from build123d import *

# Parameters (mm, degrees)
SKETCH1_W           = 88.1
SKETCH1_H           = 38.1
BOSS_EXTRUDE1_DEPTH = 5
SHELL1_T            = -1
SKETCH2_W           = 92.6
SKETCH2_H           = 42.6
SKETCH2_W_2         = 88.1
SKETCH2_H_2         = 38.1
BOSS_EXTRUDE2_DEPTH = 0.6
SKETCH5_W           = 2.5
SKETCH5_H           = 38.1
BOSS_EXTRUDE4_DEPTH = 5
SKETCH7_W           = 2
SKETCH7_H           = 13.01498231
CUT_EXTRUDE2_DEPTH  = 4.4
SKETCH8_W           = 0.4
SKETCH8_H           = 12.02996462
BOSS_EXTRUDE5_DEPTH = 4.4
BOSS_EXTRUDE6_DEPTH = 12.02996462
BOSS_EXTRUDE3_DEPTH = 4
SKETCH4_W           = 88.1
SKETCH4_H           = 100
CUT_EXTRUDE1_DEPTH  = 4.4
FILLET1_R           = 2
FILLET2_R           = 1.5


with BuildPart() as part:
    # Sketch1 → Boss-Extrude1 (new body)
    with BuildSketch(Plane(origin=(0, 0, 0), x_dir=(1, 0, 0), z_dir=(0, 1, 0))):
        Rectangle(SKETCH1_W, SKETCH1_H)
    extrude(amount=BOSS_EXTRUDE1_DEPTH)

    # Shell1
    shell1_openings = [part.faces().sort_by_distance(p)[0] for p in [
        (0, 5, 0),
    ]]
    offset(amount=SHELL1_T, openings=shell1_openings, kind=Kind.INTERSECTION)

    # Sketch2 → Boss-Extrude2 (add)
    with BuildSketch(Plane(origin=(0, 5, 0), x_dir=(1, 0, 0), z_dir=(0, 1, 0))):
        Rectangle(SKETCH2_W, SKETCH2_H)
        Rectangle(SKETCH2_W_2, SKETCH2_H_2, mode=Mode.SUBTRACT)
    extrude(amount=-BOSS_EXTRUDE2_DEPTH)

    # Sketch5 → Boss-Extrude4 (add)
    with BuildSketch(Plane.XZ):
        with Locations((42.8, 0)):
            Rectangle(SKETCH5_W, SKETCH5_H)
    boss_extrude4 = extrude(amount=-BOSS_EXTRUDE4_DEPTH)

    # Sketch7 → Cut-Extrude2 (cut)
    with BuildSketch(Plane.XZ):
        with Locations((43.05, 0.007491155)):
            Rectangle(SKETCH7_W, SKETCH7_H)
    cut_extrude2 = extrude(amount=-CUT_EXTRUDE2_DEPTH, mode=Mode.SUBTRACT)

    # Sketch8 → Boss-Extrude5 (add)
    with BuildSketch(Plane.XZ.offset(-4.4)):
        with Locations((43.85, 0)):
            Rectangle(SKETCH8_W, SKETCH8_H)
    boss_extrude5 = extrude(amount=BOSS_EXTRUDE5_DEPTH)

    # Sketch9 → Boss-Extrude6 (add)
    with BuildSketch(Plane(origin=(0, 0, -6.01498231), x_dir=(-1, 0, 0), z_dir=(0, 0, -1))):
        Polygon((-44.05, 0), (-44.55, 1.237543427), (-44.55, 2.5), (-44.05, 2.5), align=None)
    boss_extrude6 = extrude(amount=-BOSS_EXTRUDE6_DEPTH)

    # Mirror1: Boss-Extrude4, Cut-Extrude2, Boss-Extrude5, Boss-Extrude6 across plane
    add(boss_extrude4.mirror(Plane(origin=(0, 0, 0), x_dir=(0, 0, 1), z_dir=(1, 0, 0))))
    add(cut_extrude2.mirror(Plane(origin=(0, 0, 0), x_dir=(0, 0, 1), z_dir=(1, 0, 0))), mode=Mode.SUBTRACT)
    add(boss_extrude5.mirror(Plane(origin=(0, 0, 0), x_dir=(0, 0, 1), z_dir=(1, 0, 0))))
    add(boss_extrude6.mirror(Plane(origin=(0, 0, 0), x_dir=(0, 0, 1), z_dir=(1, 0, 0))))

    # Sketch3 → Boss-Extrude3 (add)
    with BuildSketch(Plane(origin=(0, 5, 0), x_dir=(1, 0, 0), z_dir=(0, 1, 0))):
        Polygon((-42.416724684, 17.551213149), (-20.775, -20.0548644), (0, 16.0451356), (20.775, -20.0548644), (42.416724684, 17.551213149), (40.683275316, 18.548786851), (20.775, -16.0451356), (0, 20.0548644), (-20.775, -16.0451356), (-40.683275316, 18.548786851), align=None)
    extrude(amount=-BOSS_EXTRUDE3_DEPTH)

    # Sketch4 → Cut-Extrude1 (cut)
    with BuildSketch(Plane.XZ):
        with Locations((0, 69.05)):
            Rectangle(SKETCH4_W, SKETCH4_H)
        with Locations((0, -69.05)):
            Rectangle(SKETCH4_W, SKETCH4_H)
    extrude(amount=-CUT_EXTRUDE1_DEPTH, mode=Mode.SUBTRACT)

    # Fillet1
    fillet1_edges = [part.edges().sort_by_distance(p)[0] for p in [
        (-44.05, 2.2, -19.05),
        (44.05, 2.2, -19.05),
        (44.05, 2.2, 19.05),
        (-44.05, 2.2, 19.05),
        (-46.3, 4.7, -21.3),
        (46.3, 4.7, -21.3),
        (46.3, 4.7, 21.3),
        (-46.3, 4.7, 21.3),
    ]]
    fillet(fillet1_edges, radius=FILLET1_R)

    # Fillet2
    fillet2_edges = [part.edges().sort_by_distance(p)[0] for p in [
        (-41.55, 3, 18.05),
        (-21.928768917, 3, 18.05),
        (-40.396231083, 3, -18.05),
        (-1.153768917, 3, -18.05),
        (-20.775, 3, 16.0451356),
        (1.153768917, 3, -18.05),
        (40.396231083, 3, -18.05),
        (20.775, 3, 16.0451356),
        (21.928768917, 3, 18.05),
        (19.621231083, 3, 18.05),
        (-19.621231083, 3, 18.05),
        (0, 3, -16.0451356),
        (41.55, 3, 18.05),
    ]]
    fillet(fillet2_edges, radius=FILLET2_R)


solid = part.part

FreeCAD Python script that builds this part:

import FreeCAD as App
import Part
import Sketcher
Q = App.Units.Quantity


def edges_at(feature, points):
    """Names of the edges that pass closest to the given points."""
    edges = feature.Shape.Edges
    near = lambda p: min(range(len(edges)), key=lambda i: edges[i].distToShape(Part.Vertex(*p))[0])
    return sorted({f"Edge{near(p) + 1}" for p in points})


def faces_at(feature, points):
    """Names of the faces that lie closest to the given points."""
    faces = feature.Shape.Faces
    near = lambda p: min(range(len(faces)), key=lambda i: faces[i].distToShape(Part.Vertex(*p))[0])
    return sorted({f"Face{near(p) + 1}" for p in points})

doc = App.newDocument("Part")
body = doc.addObject("PartDesign::Body", "Body")

# Sketch on XZ plane
sketch1 = body.newObject("Sketcher::SketchObject", "Sketch")
sketch1.AttachmentSupport = (doc.getObject("XZ_Plane"), [""])
sketch1.MapMode = "FlatFace"
sketch1.addGeometry([
    Part.LineSegment(App.Vector(-44, -19, 0), App.Vector(-44, 19, 0)),
    Part.LineSegment(App.Vector(-44, 19, 0), App.Vector(44, 19, 0)),
    Part.LineSegment(App.Vector(44, 19, 0), App.Vector(44, -19, 0)),
    Part.LineSegment(App.Vector(44, -19, 0), App.Vector(-44, -19, 0)),
], False)
sketch1.addConstraint([
    Sketcher.Constraint("Coincident", 0, 2, 1, 1),
    Sketcher.Constraint("Coincident", 1, 2, 2, 1),
    Sketcher.Constraint("Coincident", 2, 2, 3, 1),
    Sketcher.Constraint("Coincident", 3, 2, 0, 1),
    Sketcher.Constraint("Vertical", 0),
    Sketcher.Constraint("Horizontal", 1),
    Sketcher.Constraint("Vertical", 2),
    Sketcher.Constraint("Horizontal", 3),
    Sketcher.Constraint("Symmetric", 0, 2, 2, 2, -1, 1),
    Sketcher.Constraint("DistanceX", 1, 1, 1, 2, 88.1),
    Sketcher.Constraint("DistanceY", 0, 1, 0, 2, 38.1),
])
pad1 = body.newObject("PartDesign::Pad", "Pad")
pad1.Profile = sketch1
pad1.Length = 5
pad1.Reversed = True
doc.recompute()

thickness = body.newObject("PartDesign::Thickness", "Thickness")
thickness.Base = (pad1, faces_at(pad1, [(0, 5, 0)]))
thickness.Value = 1
thickness.Reversed = True
thickness.Join = "Intersection"

# Sketch on XZ plane
sketch2 = body.newObject("Sketcher::SketchObject", "Sketch001")
sketch2.AttachmentSupport = (doc.getObject("XZ_Plane"), [""])
sketch2.MapMode = "FlatFace"
sketch2.AttachmentOffset = App.Placement(App.Vector(0, 0, -5), App.Rotation())
sketch2.addGeometry([
    Part.LineSegment(App.Vector(-46, -21, 0), App.Vector(-46, 21, 0)),  # 0
    Part.LineSegment(App.Vector(-46, 21, 0), App.Vector(46, 21, 0)),  # 1
    Part.LineSegment(App.Vector(46, 21, 0), App.Vector(46, -21, 0)),  # 2
    Part.LineSegment(App.Vector(46, -21, 0), App.Vector(-46, -21, 0)),  # 3
    Part.LineSegment(App.Vector(44, 19, 0), App.Vector(-44, 19, 0)),  # 4
    Part.LineSegment(App.Vector(-44, 19, 0), App.Vector(-44, -19, 0)),  # 5
    Part.LineSegment(App.Vector(-44, -19, 0), App.Vector(44, -19, 0)),  # 6
    Part.LineSegment(App.Vector(44, -19, 0), App.Vector(44, 19, 0)),  # 7
], False)
sketch2.addConstraint([
    Sketcher.Constraint("Coincident", 0, 2, 1, 1),
    Sketcher.Constraint("Coincident", 1, 2, 2, 1),
    Sketcher.Constraint("Coincident", 2, 2, 3, 1),
    Sketcher.Constraint("Coincident", 3, 2, 0, 1),
    Sketcher.Constraint("Coincident", 4, 2, 5, 1),
    Sketcher.Constraint("Coincident", 5, 2, 6, 1),
    Sketcher.Constraint("Coincident", 6, 2, 7, 1),
    Sketcher.Constraint("Coincident", 7, 2, 4, 1),
    Sketcher.Constraint("Vertical", 0),
    Sketcher.Constraint("Horizontal", 1),
    Sketcher.Constraint("Vertical", 2),
    Sketcher.Constraint("Horizontal", 3),
    Sketcher.Constraint("Horizontal", 4),
    Sketcher.Constraint("Vertical", 5),
    Sketcher.Constraint("Horizontal", 6),
    Sketcher.Constraint("Vertical", 7),
    Sketcher.Constraint("Symmetric", 0, 2, 2, 2, -1, 1),
    Sketcher.Constraint("Symmetric", 4, 2, 6, 2, -1, 1),
    Sketcher.Constraint("DistanceX", 1, 1, 1, 2, 92.6),
    Sketcher.Constraint("DistanceX", 4, 2, 4, 1, 88.1),
    Sketcher.Constraint("DistanceY", 0, 1, 0, 2, 42.6),
    Sketcher.Constraint("DistanceY", 5, 2, 5, 1, 38.1),
])
pad2 = body.newObject("PartDesign::Pad", "Pad001")
pad2.Profile = sketch2
pad2.Length = 0.6

# Sketch on XZ plane
sketch3 = body.newObject("Sketcher::SketchObject", "Sketch002")
sketch3.AttachmentSupport = (doc.getObject("XZ_Plane"), [""])
sketch3.MapMode = "FlatFace"
sketch3.addGeometry([
    Part.LineSegment(App.Vector(41.5, 19.1, 0), App.Vector(41.5, -19.1, 0)),
    Part.LineSegment(App.Vector(41.5, -19.1, 0), App.Vector(44, -19.1, 0)),
    Part.LineSegment(App.Vector(44, -19.1, 0), App.Vector(44, 19.1, 0)),
    Part.LineSegment(App.Vector(44, 19.1, 0), App.Vector(41.5, 19.1, 0)),
], False)
sketch3.addConstraint([
    Sketcher.Constraint("Coincident", 0, 2, 1, 1),
    Sketcher.Constraint("Coincident", 1, 2, 2, 1),
    Sketcher.Constraint("Coincident", 2, 2, 3, 1),
    Sketcher.Constraint("Coincident", 3, 2, 0, 1),
    Sketcher.Constraint("Vertical", 0),
    Sketcher.Constraint("Horizontal", 1),
    Sketcher.Constraint("Vertical", 2),
    Sketcher.Constraint("Horizontal", 3),
    Sketcher.Constraint("DistanceX", 1, 1, 1, 2, 2.5),
    Sketcher.Constraint("DistanceY", 0, 2, 0, 1, 38.1),
    Sketcher.Constraint("DistanceX", -1, 1, 0, 2, 41.55),
    Sketcher.Constraint("DistanceY", 0, 2, -1, 1, 19.05),
])
pad3 = body.newObject("PartDesign::Pad", "Pad002")
pad3.Profile = sketch3
pad3.Length = 5
pad3.Reversed = True

# Sketch on XZ plane
sketch4 = body.newObject("Sketcher::SketchObject", "Sketch003")
sketch4.AttachmentSupport = (doc.getObject("XZ_Plane"), [""])
sketch4.MapMode = "FlatFace"
sketch4.addGeometry([
    Part.LineSegment(App.Vector(42, 6.5, 0), App.Vector(42, -6.5, 0)),
    Part.LineSegment(App.Vector(42, -6.5, 0), App.Vector(44, -6.5, 0)),
    Part.LineSegment(App.Vector(44, -6.5, 0), App.Vector(44, 6.5, 0)),
    Part.LineSegment(App.Vector(44, 6.5, 0), App.Vector(42, 6.5, 0)),
], False)
sketch4.addConstraint([
    Sketcher.Constraint("Coincident", 0, 2, 1, 1),
    Sketcher.Constraint("Coincident", 1, 2, 2, 1),
    Sketcher.Constraint("Coincident", 2, 2, 3, 1),
    Sketcher.Constraint("Coincident", 3, 2, 0, 1),
    Sketcher.Constraint("Vertical", 0),
    Sketcher.Constraint("Horizontal", 1),
    Sketcher.Constraint("Vertical", 2),
    Sketcher.Constraint("Horizontal", 3),
    Sketcher.Constraint("DistanceX", 1, 1, 1, 2, 2.0),
    Sketcher.Constraint("DistanceY", 0, 2, -1, 1, 6.5),
    Sketcher.Constraint("DistanceX", -1, 1, 0, 2, 42.05),
    Sketcher.Constraint("DistanceY", 0, 2, 0, 1, 13.014982),
])
pocket1 = body.newObject("PartDesign::Pocket", "Pocket")
pocket1.Profile = sketch4
pocket1.Length = 4.4

# Sketch on XZ plane
sketch5 = body.newObject("Sketcher::SketchObject", "Sketch004")
sketch5.AttachmentSupport = (doc.getObject("XZ_Plane"), [""])
sketch5.MapMode = "FlatFace"
sketch5.AttachmentOffset = App.Placement(App.Vector(0, 0, -4.4), App.Rotation())
sketch5.addGeometry([
    Part.LineSegment(App.Vector(43.65, 6.01, 0), App.Vector(43.65, -6.01, 0)),
    Part.LineSegment(App.Vector(43.65, -6.01, 0), App.Vector(44.05, -6.01, 0)),
    Part.LineSegment(App.Vector(44.05, -6.01, 0), App.Vector(44.05, 6.01, 0)),
    Part.LineSegment(App.Vector(44.05, 6.01, 0), App.Vector(43.65, 6.01, 0)),
], False)
sketch5.addConstraint([
    Sketcher.Constraint("Coincident", 0, 2, 1, 1),
    Sketcher.Constraint("Coincident", 1, 2, 2, 1),
    Sketcher.Constraint("Coincident", 2, 2, 3, 1),
    Sketcher.Constraint("Coincident", 3, 2, 0, 1),
    Sketcher.Constraint("Vertical", 0),
    Sketcher.Constraint("Horizontal", 1),
    Sketcher.Constraint("Vertical", 2),
    Sketcher.Constraint("Horizontal", 3),
    Sketcher.Constraint("DistanceX", 1, 1, 1, 2, 0.4),
    Sketcher.Constraint("DistanceX", -1, 1, 0, 2, 43.65),
    Sketcher.Constraint("DistanceY", 0, 2, 0, 1, 12.029965),
    Sketcher.Constraint("DistanceY", 0, 2, -1, 1, 6.014982),
])
pad4 = body.newObject("PartDesign::Pad", "Pad003")
pad4.Profile = sketch5
pad4.Length = 4.4

# Sketch on XY plane
sketch6 = body.newObject("Sketcher::SketchObject", "Sketch005")
sketch6.AttachmentSupport = (doc.getObject("XY_Plane"), [""])
sketch6.MapMode = "FlatFace"
sketch6.AttachmentOffset = App.Placement(App.Vector(0, 0, -6.014982), App.Rotation())
sketch6.addGeometry([
    Part.LineSegment(App.Vector(44.5, 1.2, 0), App.Vector(44, 0, 0)),
    Part.LineSegment(App.Vector(44, 0, 0), App.Vector(44, 2.5, 0)),
    Part.LineSegment(App.Vector(44, 2.5, 0), App.Vector(44.5, 2.5, 0)),
    Part.LineSegment(App.Vector(44.5, 2.5, 0), App.Vector(44.5, 1.2, 0)),
], False)
sketch6.addConstraint([
    Sketcher.Constraint("Coincident", 0, 2, 1, 1),
    Sketcher.Constraint("Coincident", 1, 2, 2, 1),
    Sketcher.Constraint("Coincident", 2, 2, 3, 1),
    Sketcher.Constraint("Coincident", 3, 2, 0, 1),
    Sketcher.Constraint("Vertical", 1),
    Sketcher.Constraint("Horizontal", 2),
    Sketcher.Constraint("Vertical", 3),
    Sketcher.Constraint("PointOnObject", 0, 2, -1),
    Sketcher.Constraint("Angle", 0, Q("-112 deg")),
    Sketcher.Constraint("DistanceX", 2, 1, 2, 2, 0.5),
    Sketcher.Constraint("DistanceY", 1, 1, 1, 2, 2.5),
    Sketcher.Constraint("DistanceX", -1, 1, 0, 2, 44.05),
])
pad5 = body.newObject("PartDesign::Pad", "Pad004")
pad5.Profile = sketch6
pad5.Length = 12.029965
doc.recompute()

mirrored = body.newObject("PartDesign::Mirrored", "Mirrored")
mirrored.Originals = [pad3, pocket1, pad4, pad5]
mirrored.MirrorPlane = (doc.getObject("YZ_Plane"), [""])
body.Tip = mirrored

# Sketch on XZ plane
sketch7 = body.newObject("Sketcher::SketchObject", "Sketch006")
sketch7.AttachmentSupport = (doc.getObject("XZ_Plane"), [""])
sketch7.MapMode = "FlatFace"
sketch7.AttachmentOffset = App.Placement(App.Vector(0, 0, -5), App.Rotation())
sketch7.addGeometry([
    Part.LineSegment(App.Vector(-42.4, -17.6, 0), App.Vector(-20.8, 20.1, 0)),  # 0
    Part.LineSegment(App.Vector(-20.8, 20.1, 0), App.Vector(0, -16, 0)),  # 1
    Part.LineSegment(App.Vector(0, -16, 0), App.Vector(20.8, 20.1, 0)),  # 2
    Part.LineSegment(App.Vector(20.8, 20.1, 0), App.Vector(42.4, -17.6, 0)),  # 3
    Part.LineSegment(App.Vector(42.4, -17.6, 0), App.Vector(40.7, -18.5, 0)),  # 4
    Part.LineSegment(App.Vector(40.7, -18.5, 0), App.Vector(20.8, 16, 0)),  # 5
    Part.LineSegment(App.Vector(20.8, 16, 0), App.Vector(0, -20.1, 0)),  # 6
    Part.LineSegment(App.Vector(0, -20.1, 0), App.Vector(-20.8, 16, 0)),  # 7
    Part.LineSegment(App.Vector(-20.8, 16, 0), App.Vector(-40.7, -18.5, 0)),  # 8
    Part.LineSegment(App.Vector(-40.7, -18.5, 0), App.Vector(-42.4, -17.6, 0)),  # 9
], False)
sketch7.addConstraint([
    Sketcher.Constraint("Coincident", 0, 2, 1, 1),
    Sketcher.Constraint("Coincident", 1, 2, 2, 1),
    Sketcher.Constraint("Coincident", 2, 2, 3, 1),
    Sketcher.Constraint("Coincident", 3, 2, 4, 1),
    Sketcher.Constraint("Coincident", 4, 2, 5, 1),
    Sketcher.Constraint("Coincident", 5, 2, 6, 1),
    Sketcher.Constraint("Coincident", 6, 2, 7, 1),
    Sketcher.Constraint("Coincident", 7, 2, 8, 1),
    Sketcher.Constraint("Coincident", 8, 2, 9, 1),
    Sketcher.Constraint("Coincident", 9, 2, 0, 1),
    Sketcher.Constraint("Symmetric", 0, 2, 2, 2, -2),
    Sketcher.Constraint("Symmetric", 5, 2, 7, 2, -2),
    Sketcher.Constraint("Symmetric", 4, 2, 8, 2, -2),
    Sketcher.Constraint("Symmetric", 3, 2, 9, 2, -2),
    Sketcher.Constraint("PointOnObject", 1, 2, -2),
    Sketcher.Constraint("PointOnObject", 6, 2, -2),
    Sketcher.Constraint("Parallel", 0, 2),
    Sketcher.Constraint("Perpendicular", 3, 4),
    Sketcher.Constraint("Perpendicular", 4, 5),
    Sketcher.Constraint("Parallel", 2, 6),
    Sketcher.Constraint("Vertical", 2, 2, 5, 2),
    Sketcher.Constraint("Distance", 4, 2.0),
    Sketcher.Constraint("DistanceY", 1, 2, 0, 2, 36.1),
    Sketcher.Constraint("DistanceX", 0, 2, 2, 2, 41.55),
    Sketcher.Constraint("DistanceY", 4, 2, 1, 2, 2.503651),
    Sketcher.Constraint("DistanceY", -1, 1, 0, 2, 20.054864),
])
pad6 = body.newObject("PartDesign::Pad", "Pad005")
pad6.Profile = sketch7
pad6.Length = 4

# Sketch on XZ plane
sketch8 = body.newObject("Sketcher::SketchObject", "Sketch007")
sketch8.AttachmentSupport = (doc.getObject("XZ_Plane"), [""])
sketch8.MapMode = "FlatFace"
sketch8.addGeometry([
    Part.LineSegment(App.Vector(-44, 119, 0), App.Vector(-44, 19, 0)),  # 0
    Part.LineSegment(App.Vector(-44, 19, 0), App.Vector(44, 19, 0)),  # 1
    Part.LineSegment(App.Vector(44, 19, 0), App.Vector(44, 119, 0)),  # 2
    Part.LineSegment(App.Vector(44, 119, 0), App.Vector(-44, 119, 0)),  # 3
    Part.LineSegment(App.Vector(-44, -19, 0), App.Vector(-44, -119, 0)),  # 4
    Part.LineSegment(App.Vector(-44, -119, 0), App.Vector(44, -119, 0)),  # 5
    Part.LineSegment(App.Vector(44, -119, 0), App.Vector(44, -19, 0)),  # 6
    Part.LineSegment(App.Vector(44, -19, 0), App.Vector(-44, -19, 0)),  # 7
], False)
sketch8.addConstraint([
    Sketcher.Constraint("Coincident", 0, 2, 1, 1),
    Sketcher.Constraint("Coincident", 1, 2, 2, 1),
    Sketcher.Constraint("Coincident", 2, 2, 3, 1),
    Sketcher.Constraint("Coincident", 3, 2, 0, 1),
    Sketcher.Constraint("Coincident", 4, 2, 5, 1),
    Sketcher.Constraint("Coincident", 5, 2, 6, 1),
    Sketcher.Constraint("Coincident", 6, 2, 7, 1),
    Sketcher.Constraint("Coincident", 7, 2, 4, 1),
    Sketcher.Constraint("Vertical", 0),
    Sketcher.Constraint("Horizontal", 1),
    Sketcher.Constraint("Vertical", 2),
    Sketcher.Constraint("Horizontal", 3),
    Sketcher.Constraint("Vertical", 4),
    Sketcher.Constraint("Horizontal", 5),
    Sketcher.Constraint("Vertical", 6),
    Sketcher.Constraint("Horizontal", 7),
    Sketcher.Constraint("Symmetric", 2, 2, 4, 2, -1, 1),
    Sketcher.Constraint("Symmetric", 0, 2, 6, 2, -1, 1),
    Sketcher.Constraint("Vertical", 3, 2, 4, 2),
    Sketcher.Constraint("DistanceY", 0, 2, 0, 1, 100.0),
    Sketcher.Constraint("DistanceX", 1, 1, 1, 2, 88.1),
    Sketcher.Constraint("DistanceY", 4, 2, 0, 2, 138.1),
])
pocket2 = body.newObject("PartDesign::Pocket", "Pocket001")
pocket2.Profile = sketch8
pocket2.Length = 4.4
doc.recompute()

fillet = body.newObject("PartDesign::Fillet", "Fillet")
fillet.Base = (pocket2, edges_at(pocket2, [
    (-44.05, 2.2, -19.05),
    (44.05, 2.2, -19.05),
    (44.05, 2.2, 19.05),
    (-44.05, 2.2, 19.05),
    (-46.3, 4.7, -21.3),
    (46.3, 4.7, -21.3),
    (46.3, 4.7, 21.3),
    (-46.3, 4.7, 21.3),
]))
fillet.Radius = 2
doc.recompute()

fillet2 = body.newObject("PartDesign::Fillet", "Fillet001")
fillet2.Base = (fillet, edges_at(fillet, [
    (-41.55, 3, 18.05),
    (-21.929, 3, 18.05),
    (-40.396, 3, -18.05),
    (-1.154, 3, -18.05),
    (-20.775, 3, 16.045),
    (1.154, 3, -18.05),
    (40.396, 3, -18.05),
    (20.775, 3, 16.045),
    (21.929, 3, 18.05),
    (19.621, 3, 18.05),
    (-19.621, 3, 18.05),
    (0, 3, -16.045),
    (41.55, 3, 18.05),
]))
fillet2.Radius = 1.5

doc.recompute()
